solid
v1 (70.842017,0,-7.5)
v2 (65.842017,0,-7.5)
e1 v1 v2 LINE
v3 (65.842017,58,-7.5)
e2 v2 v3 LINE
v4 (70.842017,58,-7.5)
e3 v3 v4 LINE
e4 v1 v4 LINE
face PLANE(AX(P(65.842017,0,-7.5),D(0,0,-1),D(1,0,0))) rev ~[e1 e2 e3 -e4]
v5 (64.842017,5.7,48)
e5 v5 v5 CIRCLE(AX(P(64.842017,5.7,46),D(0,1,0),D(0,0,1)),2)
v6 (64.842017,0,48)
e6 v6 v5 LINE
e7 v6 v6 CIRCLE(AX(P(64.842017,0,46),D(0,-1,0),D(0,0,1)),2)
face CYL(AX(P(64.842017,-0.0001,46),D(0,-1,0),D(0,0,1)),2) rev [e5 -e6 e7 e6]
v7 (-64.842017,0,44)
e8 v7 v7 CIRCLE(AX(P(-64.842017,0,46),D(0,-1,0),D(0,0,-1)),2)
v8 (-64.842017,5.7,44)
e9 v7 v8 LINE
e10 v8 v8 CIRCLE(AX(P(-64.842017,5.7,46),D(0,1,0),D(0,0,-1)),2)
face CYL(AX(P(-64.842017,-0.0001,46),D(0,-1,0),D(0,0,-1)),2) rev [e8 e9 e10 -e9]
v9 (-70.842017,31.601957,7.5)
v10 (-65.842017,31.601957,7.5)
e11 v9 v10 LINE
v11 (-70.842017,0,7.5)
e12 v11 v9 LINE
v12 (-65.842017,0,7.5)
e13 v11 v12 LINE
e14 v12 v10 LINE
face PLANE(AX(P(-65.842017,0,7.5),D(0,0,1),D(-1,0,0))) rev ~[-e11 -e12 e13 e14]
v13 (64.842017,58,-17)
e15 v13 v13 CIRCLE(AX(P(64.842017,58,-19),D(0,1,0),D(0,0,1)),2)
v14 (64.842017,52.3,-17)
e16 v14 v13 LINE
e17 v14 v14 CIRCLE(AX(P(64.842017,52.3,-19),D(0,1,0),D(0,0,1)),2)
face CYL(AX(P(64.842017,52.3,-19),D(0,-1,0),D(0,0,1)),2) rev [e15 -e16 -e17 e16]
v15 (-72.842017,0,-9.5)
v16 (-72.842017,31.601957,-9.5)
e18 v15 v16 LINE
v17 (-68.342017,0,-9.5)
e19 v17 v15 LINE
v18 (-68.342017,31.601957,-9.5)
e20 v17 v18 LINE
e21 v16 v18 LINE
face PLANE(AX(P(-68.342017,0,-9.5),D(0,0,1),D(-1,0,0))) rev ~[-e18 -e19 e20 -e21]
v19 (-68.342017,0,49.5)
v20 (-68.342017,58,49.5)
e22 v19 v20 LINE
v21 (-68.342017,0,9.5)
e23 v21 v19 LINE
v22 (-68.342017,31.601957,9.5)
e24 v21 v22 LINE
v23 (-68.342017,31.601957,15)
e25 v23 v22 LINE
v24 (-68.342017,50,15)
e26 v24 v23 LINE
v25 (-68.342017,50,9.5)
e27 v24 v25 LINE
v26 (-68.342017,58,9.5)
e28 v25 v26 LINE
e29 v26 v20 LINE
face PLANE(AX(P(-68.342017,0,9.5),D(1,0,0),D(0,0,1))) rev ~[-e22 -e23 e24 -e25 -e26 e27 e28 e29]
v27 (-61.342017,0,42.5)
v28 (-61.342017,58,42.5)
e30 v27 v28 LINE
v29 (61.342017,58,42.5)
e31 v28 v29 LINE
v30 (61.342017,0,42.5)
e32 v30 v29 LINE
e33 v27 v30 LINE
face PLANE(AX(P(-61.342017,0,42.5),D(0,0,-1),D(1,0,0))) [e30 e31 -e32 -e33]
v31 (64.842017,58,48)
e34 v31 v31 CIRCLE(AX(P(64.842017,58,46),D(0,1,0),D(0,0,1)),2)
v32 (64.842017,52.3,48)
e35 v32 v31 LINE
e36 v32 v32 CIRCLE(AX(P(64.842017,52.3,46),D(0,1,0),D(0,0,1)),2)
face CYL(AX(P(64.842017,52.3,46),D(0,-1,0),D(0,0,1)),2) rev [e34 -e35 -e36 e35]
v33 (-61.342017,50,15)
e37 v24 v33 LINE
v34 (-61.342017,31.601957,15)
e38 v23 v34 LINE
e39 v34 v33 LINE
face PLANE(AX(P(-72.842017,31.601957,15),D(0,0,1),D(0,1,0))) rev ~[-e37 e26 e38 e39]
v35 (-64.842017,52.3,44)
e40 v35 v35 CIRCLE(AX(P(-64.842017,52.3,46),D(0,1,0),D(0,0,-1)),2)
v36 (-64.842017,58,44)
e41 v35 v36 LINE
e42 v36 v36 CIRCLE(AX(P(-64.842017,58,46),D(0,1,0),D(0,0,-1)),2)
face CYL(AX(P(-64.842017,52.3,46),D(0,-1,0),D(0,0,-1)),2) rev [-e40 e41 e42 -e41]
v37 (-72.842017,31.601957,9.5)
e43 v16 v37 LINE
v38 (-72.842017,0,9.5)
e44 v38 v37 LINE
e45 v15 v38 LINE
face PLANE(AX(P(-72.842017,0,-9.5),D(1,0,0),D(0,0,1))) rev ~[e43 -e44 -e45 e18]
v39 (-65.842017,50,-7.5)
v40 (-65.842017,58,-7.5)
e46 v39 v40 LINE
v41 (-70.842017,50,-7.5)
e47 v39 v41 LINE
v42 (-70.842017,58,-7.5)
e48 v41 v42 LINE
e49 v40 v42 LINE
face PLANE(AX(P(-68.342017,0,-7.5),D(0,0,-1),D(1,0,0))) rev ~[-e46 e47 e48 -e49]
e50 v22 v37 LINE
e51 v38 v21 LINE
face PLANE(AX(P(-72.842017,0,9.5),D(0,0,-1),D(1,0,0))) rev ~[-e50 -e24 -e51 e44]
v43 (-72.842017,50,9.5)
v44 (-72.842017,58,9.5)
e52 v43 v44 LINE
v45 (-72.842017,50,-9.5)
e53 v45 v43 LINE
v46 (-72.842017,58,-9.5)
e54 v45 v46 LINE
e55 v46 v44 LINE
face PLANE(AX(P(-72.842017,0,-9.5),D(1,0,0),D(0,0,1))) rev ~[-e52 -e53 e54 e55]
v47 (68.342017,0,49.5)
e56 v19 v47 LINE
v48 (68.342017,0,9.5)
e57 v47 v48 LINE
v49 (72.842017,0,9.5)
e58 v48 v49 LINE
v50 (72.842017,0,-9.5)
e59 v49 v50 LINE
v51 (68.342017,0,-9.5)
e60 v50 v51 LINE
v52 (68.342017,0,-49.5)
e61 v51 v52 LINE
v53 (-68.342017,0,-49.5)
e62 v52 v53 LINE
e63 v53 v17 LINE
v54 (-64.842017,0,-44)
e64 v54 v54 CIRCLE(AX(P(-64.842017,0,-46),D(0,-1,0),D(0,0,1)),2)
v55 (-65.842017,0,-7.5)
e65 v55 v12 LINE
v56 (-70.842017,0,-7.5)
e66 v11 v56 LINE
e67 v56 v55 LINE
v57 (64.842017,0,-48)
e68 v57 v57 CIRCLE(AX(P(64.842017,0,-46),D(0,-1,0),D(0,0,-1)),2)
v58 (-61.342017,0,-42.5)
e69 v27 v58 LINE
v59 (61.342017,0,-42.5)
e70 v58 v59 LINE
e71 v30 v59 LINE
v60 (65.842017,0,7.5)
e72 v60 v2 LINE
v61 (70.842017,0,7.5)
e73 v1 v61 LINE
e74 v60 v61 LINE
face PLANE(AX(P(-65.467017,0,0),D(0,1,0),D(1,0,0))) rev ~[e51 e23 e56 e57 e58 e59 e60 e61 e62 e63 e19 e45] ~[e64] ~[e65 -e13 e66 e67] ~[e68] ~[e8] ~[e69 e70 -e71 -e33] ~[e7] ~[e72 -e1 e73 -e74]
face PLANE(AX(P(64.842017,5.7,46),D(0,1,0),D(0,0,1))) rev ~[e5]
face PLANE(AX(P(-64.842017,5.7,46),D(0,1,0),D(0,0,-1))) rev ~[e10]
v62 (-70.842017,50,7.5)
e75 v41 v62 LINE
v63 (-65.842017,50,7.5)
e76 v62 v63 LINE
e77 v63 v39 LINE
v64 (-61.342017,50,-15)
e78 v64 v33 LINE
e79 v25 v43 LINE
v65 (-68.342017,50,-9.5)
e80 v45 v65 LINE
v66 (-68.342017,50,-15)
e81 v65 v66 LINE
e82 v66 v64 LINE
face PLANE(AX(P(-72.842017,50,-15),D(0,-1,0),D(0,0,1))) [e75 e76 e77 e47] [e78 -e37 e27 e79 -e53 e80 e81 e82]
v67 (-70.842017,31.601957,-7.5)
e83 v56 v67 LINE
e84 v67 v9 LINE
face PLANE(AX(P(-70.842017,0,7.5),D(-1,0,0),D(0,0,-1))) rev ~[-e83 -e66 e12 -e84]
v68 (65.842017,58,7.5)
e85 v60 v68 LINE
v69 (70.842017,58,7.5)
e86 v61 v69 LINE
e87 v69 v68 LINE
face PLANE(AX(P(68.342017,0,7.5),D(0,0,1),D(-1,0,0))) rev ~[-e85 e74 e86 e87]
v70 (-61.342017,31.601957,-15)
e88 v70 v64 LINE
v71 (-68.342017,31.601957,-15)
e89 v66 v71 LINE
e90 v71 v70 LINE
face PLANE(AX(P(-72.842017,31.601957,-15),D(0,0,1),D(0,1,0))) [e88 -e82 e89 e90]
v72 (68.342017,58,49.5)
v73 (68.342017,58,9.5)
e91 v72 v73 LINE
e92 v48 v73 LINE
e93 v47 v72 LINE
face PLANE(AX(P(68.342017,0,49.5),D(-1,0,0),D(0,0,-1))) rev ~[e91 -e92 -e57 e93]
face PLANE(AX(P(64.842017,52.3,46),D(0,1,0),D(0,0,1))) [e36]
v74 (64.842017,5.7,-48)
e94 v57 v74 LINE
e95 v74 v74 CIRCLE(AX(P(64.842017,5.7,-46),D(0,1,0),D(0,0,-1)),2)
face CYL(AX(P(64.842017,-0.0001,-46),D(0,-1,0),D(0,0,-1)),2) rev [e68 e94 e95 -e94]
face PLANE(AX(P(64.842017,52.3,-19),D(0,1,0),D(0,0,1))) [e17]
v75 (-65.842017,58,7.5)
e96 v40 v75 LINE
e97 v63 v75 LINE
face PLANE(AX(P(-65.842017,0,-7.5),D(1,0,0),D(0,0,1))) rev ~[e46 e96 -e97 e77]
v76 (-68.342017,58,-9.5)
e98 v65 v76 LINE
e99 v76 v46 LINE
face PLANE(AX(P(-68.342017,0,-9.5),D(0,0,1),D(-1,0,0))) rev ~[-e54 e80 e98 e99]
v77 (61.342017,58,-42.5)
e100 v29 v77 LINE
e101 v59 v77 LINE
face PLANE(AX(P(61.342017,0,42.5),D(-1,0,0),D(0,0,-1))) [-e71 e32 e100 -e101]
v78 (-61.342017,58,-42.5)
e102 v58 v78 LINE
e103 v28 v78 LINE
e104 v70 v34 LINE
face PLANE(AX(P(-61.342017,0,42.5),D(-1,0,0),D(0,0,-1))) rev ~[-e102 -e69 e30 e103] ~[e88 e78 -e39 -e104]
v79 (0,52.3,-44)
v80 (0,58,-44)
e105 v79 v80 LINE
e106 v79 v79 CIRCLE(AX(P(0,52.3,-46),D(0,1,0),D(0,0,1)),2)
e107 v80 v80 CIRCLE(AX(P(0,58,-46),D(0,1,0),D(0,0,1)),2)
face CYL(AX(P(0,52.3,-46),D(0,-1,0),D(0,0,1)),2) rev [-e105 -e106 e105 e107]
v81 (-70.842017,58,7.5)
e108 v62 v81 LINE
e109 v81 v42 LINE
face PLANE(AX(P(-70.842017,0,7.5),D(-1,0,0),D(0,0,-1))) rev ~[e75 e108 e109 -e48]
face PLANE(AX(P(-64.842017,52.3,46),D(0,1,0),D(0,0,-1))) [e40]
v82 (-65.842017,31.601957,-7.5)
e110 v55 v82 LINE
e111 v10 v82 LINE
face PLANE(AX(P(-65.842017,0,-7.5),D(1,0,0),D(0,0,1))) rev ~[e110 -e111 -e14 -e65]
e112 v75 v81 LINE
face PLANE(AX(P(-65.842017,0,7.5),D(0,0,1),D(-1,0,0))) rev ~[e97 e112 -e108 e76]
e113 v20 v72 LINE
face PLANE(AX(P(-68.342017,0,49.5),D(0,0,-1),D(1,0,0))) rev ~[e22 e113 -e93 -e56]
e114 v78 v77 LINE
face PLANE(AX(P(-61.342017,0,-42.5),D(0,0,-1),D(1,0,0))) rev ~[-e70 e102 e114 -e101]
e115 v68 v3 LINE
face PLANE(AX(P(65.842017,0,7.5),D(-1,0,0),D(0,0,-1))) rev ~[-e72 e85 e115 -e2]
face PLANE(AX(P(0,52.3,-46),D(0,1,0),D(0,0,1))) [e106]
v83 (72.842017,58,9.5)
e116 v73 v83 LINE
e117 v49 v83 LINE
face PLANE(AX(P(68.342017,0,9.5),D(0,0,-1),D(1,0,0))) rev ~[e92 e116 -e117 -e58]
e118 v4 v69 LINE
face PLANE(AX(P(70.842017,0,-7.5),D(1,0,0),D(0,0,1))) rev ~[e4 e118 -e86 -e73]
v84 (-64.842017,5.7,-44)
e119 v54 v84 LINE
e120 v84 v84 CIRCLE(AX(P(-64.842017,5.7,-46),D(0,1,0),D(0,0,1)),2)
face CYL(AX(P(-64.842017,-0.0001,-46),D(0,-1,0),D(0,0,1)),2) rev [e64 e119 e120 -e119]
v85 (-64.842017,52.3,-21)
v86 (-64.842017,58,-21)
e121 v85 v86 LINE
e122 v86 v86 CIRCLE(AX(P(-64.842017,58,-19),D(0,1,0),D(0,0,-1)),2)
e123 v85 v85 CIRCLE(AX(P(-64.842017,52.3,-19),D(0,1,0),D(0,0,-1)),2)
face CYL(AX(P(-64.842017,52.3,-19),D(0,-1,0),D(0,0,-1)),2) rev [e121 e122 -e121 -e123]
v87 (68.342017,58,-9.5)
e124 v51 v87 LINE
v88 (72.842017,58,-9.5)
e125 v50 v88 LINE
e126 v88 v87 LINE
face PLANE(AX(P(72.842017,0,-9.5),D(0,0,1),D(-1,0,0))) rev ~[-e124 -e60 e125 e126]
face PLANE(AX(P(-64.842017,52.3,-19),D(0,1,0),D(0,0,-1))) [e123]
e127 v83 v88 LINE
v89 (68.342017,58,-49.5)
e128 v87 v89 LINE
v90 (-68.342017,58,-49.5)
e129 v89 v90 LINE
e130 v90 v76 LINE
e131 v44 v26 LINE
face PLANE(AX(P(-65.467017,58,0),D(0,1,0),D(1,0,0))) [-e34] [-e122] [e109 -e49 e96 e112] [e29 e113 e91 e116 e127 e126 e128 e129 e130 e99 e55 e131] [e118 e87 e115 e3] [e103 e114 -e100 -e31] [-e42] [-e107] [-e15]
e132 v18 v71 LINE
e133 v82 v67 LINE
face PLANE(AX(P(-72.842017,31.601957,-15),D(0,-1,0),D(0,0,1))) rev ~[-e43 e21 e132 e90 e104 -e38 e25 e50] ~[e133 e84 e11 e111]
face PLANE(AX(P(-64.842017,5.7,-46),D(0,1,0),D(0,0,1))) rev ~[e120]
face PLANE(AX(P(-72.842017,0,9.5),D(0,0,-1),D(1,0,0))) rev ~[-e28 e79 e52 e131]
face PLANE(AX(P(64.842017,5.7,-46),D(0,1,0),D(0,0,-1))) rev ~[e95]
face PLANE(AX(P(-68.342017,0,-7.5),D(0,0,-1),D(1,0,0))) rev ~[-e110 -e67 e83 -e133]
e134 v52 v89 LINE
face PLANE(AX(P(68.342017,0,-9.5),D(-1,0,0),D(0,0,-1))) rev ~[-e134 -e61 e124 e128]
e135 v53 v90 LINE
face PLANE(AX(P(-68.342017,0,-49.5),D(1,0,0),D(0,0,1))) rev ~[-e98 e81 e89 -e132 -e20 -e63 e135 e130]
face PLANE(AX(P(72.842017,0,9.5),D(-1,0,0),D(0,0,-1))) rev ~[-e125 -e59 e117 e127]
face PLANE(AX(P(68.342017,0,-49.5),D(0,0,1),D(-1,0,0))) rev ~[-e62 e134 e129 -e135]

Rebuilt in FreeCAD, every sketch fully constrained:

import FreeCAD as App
import Part
import Sketcher
Q = App.Units.Quantity

doc = App.newDocument("Part")
body = doc.addObject("PartDesign::Body", "Body")

# Sketch on XZ plane
sketch1 = body.newObject("Sketcher::SketchObject", "Sketch")
sketch1.AttachmentSupport = (doc.getObject("XZ_Plane"), [""])
sketch1.MapMode = "FlatFace"
sketch1.addGeometry([
    Part.LineSegment(App.Vector(-68.3, 9.5, 0), App.Vector(-68.3, 49.5, 0)),  # 0
    Part.LineSegment(App.Vector(-68.3, 49.5, 0), App.Vector(68.3, 49.5, 0)),  # 1
    Part.LineSegment(App.Vector(68.3, 49.5, 0), App.Vector(68.3, 9.5, 0)),  # 2
    Part.LineSegment(App.Vector(68.3, 9.5, 0), App.Vector(72.8, 9.5, 0)),  # 3
    Part.LineSegment(App.Vector(72.8, 9.5, 0), App.Vector(72.8, -9.5, 0)),  # 4
    Part.LineSegment(App.Vector(72.8, -9.5, 0), App.Vector(68.3, -9.5, 0)),  # 5
    Part.LineSegment(App.Vector(68.3, -9.5, 0), App.Vector(68.3, -49.5, 0)),  # 6
    Part.LineSegment(App.Vector(68.3, -49.5, 0), App.Vector(-68.3, -49.5, 0)),  # 7
    Part.LineSegment(App.Vector(-68.3, -49.5, 0), App.Vector(-68.3, -9.5, 0)),  # 8
    Part.LineSegment(App.Vector(-68.3, -9.5, 0), App.Vector(-72.8, -9.5, 0)),  # 9
    Part.LineSegment(App.Vector(-72.8, -9.5, 0), App.Vector(-72.8, 9.5, 0)),  # 10
    Part.LineSegment(App.Vector(-72.8, 9.5, 0), App.Vector(-68.3, 9.5, 0)),  # 11
    Part.LineSegment(App.Vector(61.3, 42.5, 0), App.Vector(-61.3, 42.5, 0)),  # 12
    Part.LineSegment(App.Vector(-61.3, 42.5, 0), App.Vector(-61.3, -42.5, 0)),  # 13
    Part.LineSegment(App.Vector(-61.3, -42.5, 0), App.Vector(61.3, -42.5, 0)),  # 14
    Part.LineSegment(App.Vector(61.3, -42.5, 0), App.Vector(61.3, 42.5, 0)),  # 15
    Part.LineSegment(App.Vector(-65.8, 7.5, 0), App.Vector(-70.8, 7.5, 0)),  # 16
    Part.LineSegment(App.Vector(-70.8, 7.5, 0), App.Vector(-70.8, -7.5, 0)),  # 17
    Part.LineSegment(App.Vector(-70.8, -7.5, 0), App.Vector(-65.8, -7.5, 0)),  # 18
    Part.LineSegment(App.Vector(-65.8, -7.5, 0), App.Vector(-65.8, 7.5, 0)),  # 19
    Part.LineSegment(App.Vector(65.8, 7.5, 0), App.Vector(65.8, -7.5, 0)),  # 20
    Part.LineSegment(App.Vector(65.8, -7.5, 0), App.Vector(70.8, -7.5, 0)),  # 21
    Part.LineSegment(App.Vector(70.8, -7.5, 0), App.Vector(70.8, 7.5, 0)),  # 22
    Part.LineSegment(App.Vector(70.8, 7.5, 0), App.Vector(65.8, 7.5, 0)),  # 23
], False)
sketch1.addConstraint([
    Sketcher.Constraint("Coincident", 0, 2, 1, 1),
    Sketcher.Constraint("Coincident", 1, 2, 2, 1),
    Sketcher.Constraint("Coincident", 2, 2, 3, 1),
    Sketcher.Constraint("Coincident", 3, 2, 4, 1),
    Sketcher.Constraint("Coincident", 4, 2, 5, 1),
    Sketcher.Constraint("Coincident", 5, 2, 6, 1),
    Sketcher.Constraint("Coincident", 6, 2, 7, 1),
    Sketcher.Constraint("Coincident", 7, 2, 8, 1),
    Sketcher.Constraint("Coincident", 8, 2, 9, 1),
    Sketcher.Constraint("Coincident", 9, 2, 10, 1),
    Sketcher.Constraint("Coincident", 10, 2, 11, 1),
    Sketcher.Constraint("Coincident", 11, 2, 0, 1),
    Sketcher.Constraint("Coincident", 12, 2, 13, 1),
    Sketcher.Constraint("Coincident", 13, 2, 14, 1),
    Sketcher.Constraint("Coincident", 14, 2, 15, 1),
    Sketcher.Constraint("Coincident", 15, 2, 12, 1),
    Sketcher.Constraint("Coincident", 16, 2, 17, 1),
    Sketcher.Constraint("Coincident", 17, 2, 18, 1),
    Sketcher.Constraint("Coincident", 18, 2, 19, 1),
    Sketcher.Constraint("Coincident", 19, 2, 16, 1),
    Sketcher.Constraint("Coincident", 20, 2, 21, 1),
    Sketcher.Constraint("Coincident", 21, 2, 22, 1),
    Sketcher.Constraint("Coincident", 22, 2, 23, 1),
    Sketcher.Constraint("Coincident", 23, 2, 20, 1),
    Sketcher.Constraint("Vertical", 0),
    Sketcher.Constraint("Horizontal", 1),
    Sketcher.Constraint("Vertical", 2),
    Sketcher.Constraint("Horizontal", 3),
    Sketcher.Constraint("Vertical", 4),
    Sketcher.Constraint("Horizontal", 5),
    Sketcher.Constraint("Vertical", 6),
    Sketcher.Constraint("Horizontal", 7),
    Sketcher.Constraint("Vertical", 8),
    Sketcher.Constraint("Horizontal", 9),
    Sketcher.Constraint("Vertical", 10),
    Sketcher.Constraint("Horizontal", 11),
    Sketcher.Constraint("Horizontal", 12),
    Sketcher.Constraint("Vertical", 13),
    Sketcher.Constraint("Horizontal", 14),
    Sketcher.Constraint("Vertical", 15),
    Sketcher.Constraint("Horizontal", 16),
    Sketcher.Constraint("Vertical", 17),
    Sketcher.Constraint("Horizontal", 18),
    Sketcher.Constraint("Vertical", 19),
    Sketcher.Constraint("Vertical", 20),
    Sketcher.Constraint("Horizontal", 21),
    Sketcher.Constraint("Vertical", 22),
    Sketcher.Constraint("Horizontal", 23),
    Sketcher.Constraint("Symmetric", 0, 2, 6, 2, -1, 1),
    Sketcher.Constraint("Symmetric", 2, 2, 8, 2, -1, 1),
    Sketcher.Constraint("Symmetric", 4, 2, 10, 2, -1, 1),
    Sketcher.Constraint("Symmetric", 12, 2, 14, 2, -1, 1),
    Sketcher.Constraint("Symmetric", 19, 2, 20, 2, -1, 1),
    Sketcher.Constraint("Symmetric", 17, 2, 22, 2, -1, 1),
    Sketcher.Constraint("Symmetric", 5, 2, 8, 2, -2),
    Sketcher.Constraint("Horizontal", 18, 2, 20, 2),
    Sketcher.Constraint("DistanceX", 16, 2, 16, 1, Q("5 mm")),
    Sketcher.Constraint("DistanceY", 0, 1, 0, 2, Q("40 mm")),
    Sketcher.Constraint("DistanceY", 4, 2, 4, 1, Q("19 mm")),
    Sketcher.Constraint("DistanceY", 13, 2, 13, 1, Q("85 mm")),
    Sketcher.Constraint("DistanceY", 17, 2, 17, 1, Q("15 mm")),
    Sketcher.Constraint("DistanceX", 3, 1, 3, 2, Q("4.5 mm")),
    Sketcher.Constraint("DistanceX", 0, 2, 12, 2, Q("7 mm")),
    Sketcher.Constraint("DistanceX", 10, 2, 16, 2, Q("2 mm")),
    Sketcher.Constraint("DistanceX", 1, 1, 1, 2, Q("136.684035 mm")),
])
pad1 = body.newObject("PartDesign::Pad", "Pad")
pad1.Profile = sketch1
pad1.Length = 58
pad1.Reversed = True

# Sketch on YZ plane
sketch2 = body.newObject("Sketcher::SketchObject", "Sketch001")
sketch2.AttachmentSupport = (doc.getObject("YZ_Plane"), [""])
sketch2.MapMode = "FlatFace"
sketch2.AttachmentOffset = App.Placement(App.Vector(0, 0, -72.842017), App.Rotation())
sketch2.addGeometry([
    Part.LineSegment(App.Vector(50, -15, 0), App.Vector(32, -15, 0)),
    Part.LineSegment(App.Vector(32, -15, 0), App.Vector(32, 15, 0)),
    Part.LineSegment(App.Vector(32, 15, 0), App.Vector(50, 15, 0)),
    Part.LineSegment(App.Vector(50, 15, 0), App.Vector(50, -15, 0)),
], False)
sketch2.addConstraint([
    Sketcher.Constraint("Coincident", 0, 2, 1, 1),
    Sketcher.Constraint("Coincident", 1, 2, 2, 1),
    Sketcher.Constraint("Coincident", 2, 2, 3, 1),
    Sketcher.Constraint("Coincident", 3, 2, 0, 1),
    Sketcher.Constraint("Horizontal", 0),
    Sketcher.Constraint("Vertical", 1),
    Sketcher.Constraint("Horizontal", 2),
    Sketcher.Constraint("Vertical", 3),
    Sketcher.Constraint("DistanceY", 1, 1, 1, 2, Q("30 mm")),
    Sketcher.Constraint("DistanceY", 0, 2, -1, 1, Q("15 mm")),
    Sketcher.Constraint("DistanceX", -1, 1, 2, 2, Q("50 mm")),
    Sketcher.Constraint("DistanceX", 0, 2, 0, 1, Q("18.398043 mm")),
])
pocket1 = body.newObject("PartDesign::Pocket", "Pocket")
pocket1.Profile = sketch2
pocket1.Length = 11.5
pocket1.Reversed = True

# Sketch on XZ plane
sketch3 = body.newObject("Sketcher::SketchObject", "Sketch002")
sketch3.AttachmentSupport = (doc.getObject("XZ_Plane"), [""])
sketch3.MapMode = "FlatFace"
sketch3.addGeometry([
    Part.Circle(App.Vector(64.8, 46, 0), App.Vector(0, 0, 1), 2),
    Part.Circle(App.Vector(64.8, -46, 0), App.Vector(0, 0, 1), 2),
    Part.Circle(App.Vector(-64.8, -46, 0), App.Vector(0, 0, 1), 2),
    Part.Circle(App.Vector(-64.8, 46, 0), App.Vector(0, 0, 1), 2),
], False)
sketch3.addConstraint([
    Sketcher.Constraint("Equal", 0, 1),
    Sketcher.Constraint("Equal", 1, 2),
    Sketcher.Constraint("Equal", 2, 3),
    Sketcher.Constraint("Symmetric", 0, 3, 2, 3, -1, 1),
    Sketcher.Constraint("Symmetric", 1, 3, 3, 3, -1, 1),
    Sketcher.Constraint("Symmetric", 1, 3, 2, 3, -2),
    Sketcher.Constraint("Diameter", 0, Q("4 mm")),
    Sketcher.Constraint("DistanceY", -1, 1, 0, 3, Q("46 mm")),
    Sketcher.Constraint("DistanceX", -1, 1, 0, 3, Q("64.842017 mm")),
])
pocket2 = body.newObject("PartDesign::Pocket", "Pocket001")
pocket2.Profile = sketch3
pocket2.Type = "TwoLengths"
pocket2.Length = 5.7
pocket2.Length2 = 0.0001

# Sketch on XZ plane
sketch4 = body.newObject("Sketcher::SketchObject", "Sketch003")
sketch4.AttachmentSupport = (doc.getObject("XZ_Plane"), [""])
sketch4.MapMode = "FlatFace"
sketch4.AttachmentOffset = App.Placement(App.Vector(0, 0, -52.3), App.Rotation())
sketch4.addGeometry([
    Part.Circle(App.Vector(-64.8, 46, 0), App.Vector(0, 0, 1), 2),  # 0
    Part.Circle(App.Vector(64.8, 46, 0), App.Vector(0, 0, 1), 2),  # 1
    Part.Circle(App.Vector(64.8, -19, 0), App.Vector(0, 0, 1), 2),  # 2
    Part.Circle(App.Vector(-64.8, -19, 0), App.Vector(0, 0, 1), 2),  # 3
    Part.Circle(App.Vector(0, -46, 0), App.Vector(0, 0, 1), 2),  # 4
], False)
sketch4.addConstraint([
    Sketcher.Constraint("Equal", 0, 1),
    Sketcher.Constraint("Equal", 1, 2),
    Sketcher.Constraint("Equal", 2, 3),
    Sketcher.Constraint("Equal", 3, 4),
    Sketcher.Constraint("Symmetric", 0, 3, 1, 3, -2),
    Sketcher.Constraint("Symmetric", 2, 3, 3, 3, -2),
    Sketcher.Constraint("PointOnObject", 4, 3, -2),
    Sketcher.Constraint("Vertical", 1, 3, 2, 3),
    Sketcher.Constraint("Diameter", 0, Q("4 mm")),
    Sketcher.Constraint("DistanceY", -1, 1, 0, 3, Q("46 mm")),
    Sketcher.Constraint("DistanceY", 2, 3, -1, 1, Q("19 mm")),
    Sketcher.Constraint("DistanceY", 4, 3, -1, 1, Q("46 mm")),
    Sketcher.Constraint("DistanceX", 0, 3, -1, 1, Q("64.842017 mm")),
])
pocket3 = body.newObject("PartDesign::Pocket", "Pocket002")
pocket3.Profile = sketch4
pocket3.Length = 5.7

doc.recompute()
